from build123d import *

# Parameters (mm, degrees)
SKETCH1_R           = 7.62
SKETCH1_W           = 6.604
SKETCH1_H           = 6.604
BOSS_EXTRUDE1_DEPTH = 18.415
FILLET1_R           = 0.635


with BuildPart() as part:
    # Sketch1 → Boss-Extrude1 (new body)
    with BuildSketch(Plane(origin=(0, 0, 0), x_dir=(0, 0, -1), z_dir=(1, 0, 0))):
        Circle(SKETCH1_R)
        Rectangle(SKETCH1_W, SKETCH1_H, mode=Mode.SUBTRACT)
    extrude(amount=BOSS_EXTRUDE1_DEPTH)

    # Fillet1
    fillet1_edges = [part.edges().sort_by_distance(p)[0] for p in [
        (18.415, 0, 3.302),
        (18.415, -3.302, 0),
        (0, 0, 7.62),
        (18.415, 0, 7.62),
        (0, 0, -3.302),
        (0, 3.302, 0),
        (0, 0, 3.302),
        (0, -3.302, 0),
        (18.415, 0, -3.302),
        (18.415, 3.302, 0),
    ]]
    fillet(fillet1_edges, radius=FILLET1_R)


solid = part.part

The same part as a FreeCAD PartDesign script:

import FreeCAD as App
import Part
import Sketcher
Q = App.Units.Quantity


def edges_at(feature, points):
    """Names of the edges that pass closest to the given points."""
    edges = feature.Shape.Edges
    near = lambda p: min(range(len(edges)), key=lambda i: edges[i].distToShape(Part.Vertex(*p))[0])
    return sorted({f"Edge{near(p) + 1}" for p in points})


def add_polygon(sketch, points):
    """Adds a closed chain of lines whose ends are joined by coincident constraints."""
    first, n = sketch.GeometryCount, len(points)
    for a, b in zip(points, points[1:] + points[:1]):
        sketch.addGeometry(Part.LineSegment(App.Vector(*a, 0), App.Vector(*b, 0)), False)
    for i in range(n):
        sketch.addConstraint(Sketcher.Constraint("Coincident", first + i, 2, first + (i + 1) % n, 1))

doc = App.newDocument("Part")
body = doc.addObject("PartDesign::Body", "Body")

# Sketch on YZ plane
sketch1 = body.newObject("Sketcher::SketchObject", "Sketch")
sketch1.AttachmentSupport = (doc.getObject("YZ_Plane"), [""])
sketch1.MapMode = "FlatFace"
sketch1.addGeometry(Part.Circle(App.Vector(0, 0, 0), App.Vector(0, 0, 1), 7.62), False)  # 0
add_polygon(sketch1, [(-3.302, -3.302), (-3.302, 3.302), (3.302, 3.302), (3.302, -3.302)])  # lines 1-4
sketch1.addConstraint(Sketcher.Constraint("Vertical", 1))
sketch1.addConstraint(Sketcher.Constraint("Horizontal", 2))
sketch1.addConstraint(Sketcher.Constraint("Vertical", 3))
sketch1.addConstraint(Sketcher.Constraint("Horizontal", 4))
sketch1.addConstraint(Sketcher.Constraint("Coincident", 0, 3, -1, 1))
sketch1.addConstraint(Sketcher.Constraint("Symmetric", 1, 2, 3, 2, -1, 1))
sketch1.addConstraint(Sketcher.Constraint("Equal", 4, 1))
sketch1.addConstraint(Sketcher.Constraint("Diameter", 0, Q("0.6 in")))
sketch1.addConstraint(Sketcher.Constraint("DistanceX", 2, 1, 2, 2, Q("0.26 in")))
pad1 = body.newObject("PartDesign::Pad", "Pad")
pad1.Profile = sketch1
pad1.Length = Q("0.725 in")
doc.recompute()

fillet = body.newObject("PartDesign::Fillet", "Fillet")
fillet.Base = (pad1, edges_at(pad1, [
    (18.415, 0, 3.302),
    (18.415, -3.302, 0),
    (0, 0, 7.62),
    (18.415, 0, 7.62),
    (0, 0, -3.302),
    (0, 3.302, 0),
    (0, 0, 3.302),
    (0, -3.302, 0),
    (18.415, 0, -3.302),
    (18.415, 3.302, 0),
]))
fillet.Radius = Q("0.025 in")

doc.recompute()
